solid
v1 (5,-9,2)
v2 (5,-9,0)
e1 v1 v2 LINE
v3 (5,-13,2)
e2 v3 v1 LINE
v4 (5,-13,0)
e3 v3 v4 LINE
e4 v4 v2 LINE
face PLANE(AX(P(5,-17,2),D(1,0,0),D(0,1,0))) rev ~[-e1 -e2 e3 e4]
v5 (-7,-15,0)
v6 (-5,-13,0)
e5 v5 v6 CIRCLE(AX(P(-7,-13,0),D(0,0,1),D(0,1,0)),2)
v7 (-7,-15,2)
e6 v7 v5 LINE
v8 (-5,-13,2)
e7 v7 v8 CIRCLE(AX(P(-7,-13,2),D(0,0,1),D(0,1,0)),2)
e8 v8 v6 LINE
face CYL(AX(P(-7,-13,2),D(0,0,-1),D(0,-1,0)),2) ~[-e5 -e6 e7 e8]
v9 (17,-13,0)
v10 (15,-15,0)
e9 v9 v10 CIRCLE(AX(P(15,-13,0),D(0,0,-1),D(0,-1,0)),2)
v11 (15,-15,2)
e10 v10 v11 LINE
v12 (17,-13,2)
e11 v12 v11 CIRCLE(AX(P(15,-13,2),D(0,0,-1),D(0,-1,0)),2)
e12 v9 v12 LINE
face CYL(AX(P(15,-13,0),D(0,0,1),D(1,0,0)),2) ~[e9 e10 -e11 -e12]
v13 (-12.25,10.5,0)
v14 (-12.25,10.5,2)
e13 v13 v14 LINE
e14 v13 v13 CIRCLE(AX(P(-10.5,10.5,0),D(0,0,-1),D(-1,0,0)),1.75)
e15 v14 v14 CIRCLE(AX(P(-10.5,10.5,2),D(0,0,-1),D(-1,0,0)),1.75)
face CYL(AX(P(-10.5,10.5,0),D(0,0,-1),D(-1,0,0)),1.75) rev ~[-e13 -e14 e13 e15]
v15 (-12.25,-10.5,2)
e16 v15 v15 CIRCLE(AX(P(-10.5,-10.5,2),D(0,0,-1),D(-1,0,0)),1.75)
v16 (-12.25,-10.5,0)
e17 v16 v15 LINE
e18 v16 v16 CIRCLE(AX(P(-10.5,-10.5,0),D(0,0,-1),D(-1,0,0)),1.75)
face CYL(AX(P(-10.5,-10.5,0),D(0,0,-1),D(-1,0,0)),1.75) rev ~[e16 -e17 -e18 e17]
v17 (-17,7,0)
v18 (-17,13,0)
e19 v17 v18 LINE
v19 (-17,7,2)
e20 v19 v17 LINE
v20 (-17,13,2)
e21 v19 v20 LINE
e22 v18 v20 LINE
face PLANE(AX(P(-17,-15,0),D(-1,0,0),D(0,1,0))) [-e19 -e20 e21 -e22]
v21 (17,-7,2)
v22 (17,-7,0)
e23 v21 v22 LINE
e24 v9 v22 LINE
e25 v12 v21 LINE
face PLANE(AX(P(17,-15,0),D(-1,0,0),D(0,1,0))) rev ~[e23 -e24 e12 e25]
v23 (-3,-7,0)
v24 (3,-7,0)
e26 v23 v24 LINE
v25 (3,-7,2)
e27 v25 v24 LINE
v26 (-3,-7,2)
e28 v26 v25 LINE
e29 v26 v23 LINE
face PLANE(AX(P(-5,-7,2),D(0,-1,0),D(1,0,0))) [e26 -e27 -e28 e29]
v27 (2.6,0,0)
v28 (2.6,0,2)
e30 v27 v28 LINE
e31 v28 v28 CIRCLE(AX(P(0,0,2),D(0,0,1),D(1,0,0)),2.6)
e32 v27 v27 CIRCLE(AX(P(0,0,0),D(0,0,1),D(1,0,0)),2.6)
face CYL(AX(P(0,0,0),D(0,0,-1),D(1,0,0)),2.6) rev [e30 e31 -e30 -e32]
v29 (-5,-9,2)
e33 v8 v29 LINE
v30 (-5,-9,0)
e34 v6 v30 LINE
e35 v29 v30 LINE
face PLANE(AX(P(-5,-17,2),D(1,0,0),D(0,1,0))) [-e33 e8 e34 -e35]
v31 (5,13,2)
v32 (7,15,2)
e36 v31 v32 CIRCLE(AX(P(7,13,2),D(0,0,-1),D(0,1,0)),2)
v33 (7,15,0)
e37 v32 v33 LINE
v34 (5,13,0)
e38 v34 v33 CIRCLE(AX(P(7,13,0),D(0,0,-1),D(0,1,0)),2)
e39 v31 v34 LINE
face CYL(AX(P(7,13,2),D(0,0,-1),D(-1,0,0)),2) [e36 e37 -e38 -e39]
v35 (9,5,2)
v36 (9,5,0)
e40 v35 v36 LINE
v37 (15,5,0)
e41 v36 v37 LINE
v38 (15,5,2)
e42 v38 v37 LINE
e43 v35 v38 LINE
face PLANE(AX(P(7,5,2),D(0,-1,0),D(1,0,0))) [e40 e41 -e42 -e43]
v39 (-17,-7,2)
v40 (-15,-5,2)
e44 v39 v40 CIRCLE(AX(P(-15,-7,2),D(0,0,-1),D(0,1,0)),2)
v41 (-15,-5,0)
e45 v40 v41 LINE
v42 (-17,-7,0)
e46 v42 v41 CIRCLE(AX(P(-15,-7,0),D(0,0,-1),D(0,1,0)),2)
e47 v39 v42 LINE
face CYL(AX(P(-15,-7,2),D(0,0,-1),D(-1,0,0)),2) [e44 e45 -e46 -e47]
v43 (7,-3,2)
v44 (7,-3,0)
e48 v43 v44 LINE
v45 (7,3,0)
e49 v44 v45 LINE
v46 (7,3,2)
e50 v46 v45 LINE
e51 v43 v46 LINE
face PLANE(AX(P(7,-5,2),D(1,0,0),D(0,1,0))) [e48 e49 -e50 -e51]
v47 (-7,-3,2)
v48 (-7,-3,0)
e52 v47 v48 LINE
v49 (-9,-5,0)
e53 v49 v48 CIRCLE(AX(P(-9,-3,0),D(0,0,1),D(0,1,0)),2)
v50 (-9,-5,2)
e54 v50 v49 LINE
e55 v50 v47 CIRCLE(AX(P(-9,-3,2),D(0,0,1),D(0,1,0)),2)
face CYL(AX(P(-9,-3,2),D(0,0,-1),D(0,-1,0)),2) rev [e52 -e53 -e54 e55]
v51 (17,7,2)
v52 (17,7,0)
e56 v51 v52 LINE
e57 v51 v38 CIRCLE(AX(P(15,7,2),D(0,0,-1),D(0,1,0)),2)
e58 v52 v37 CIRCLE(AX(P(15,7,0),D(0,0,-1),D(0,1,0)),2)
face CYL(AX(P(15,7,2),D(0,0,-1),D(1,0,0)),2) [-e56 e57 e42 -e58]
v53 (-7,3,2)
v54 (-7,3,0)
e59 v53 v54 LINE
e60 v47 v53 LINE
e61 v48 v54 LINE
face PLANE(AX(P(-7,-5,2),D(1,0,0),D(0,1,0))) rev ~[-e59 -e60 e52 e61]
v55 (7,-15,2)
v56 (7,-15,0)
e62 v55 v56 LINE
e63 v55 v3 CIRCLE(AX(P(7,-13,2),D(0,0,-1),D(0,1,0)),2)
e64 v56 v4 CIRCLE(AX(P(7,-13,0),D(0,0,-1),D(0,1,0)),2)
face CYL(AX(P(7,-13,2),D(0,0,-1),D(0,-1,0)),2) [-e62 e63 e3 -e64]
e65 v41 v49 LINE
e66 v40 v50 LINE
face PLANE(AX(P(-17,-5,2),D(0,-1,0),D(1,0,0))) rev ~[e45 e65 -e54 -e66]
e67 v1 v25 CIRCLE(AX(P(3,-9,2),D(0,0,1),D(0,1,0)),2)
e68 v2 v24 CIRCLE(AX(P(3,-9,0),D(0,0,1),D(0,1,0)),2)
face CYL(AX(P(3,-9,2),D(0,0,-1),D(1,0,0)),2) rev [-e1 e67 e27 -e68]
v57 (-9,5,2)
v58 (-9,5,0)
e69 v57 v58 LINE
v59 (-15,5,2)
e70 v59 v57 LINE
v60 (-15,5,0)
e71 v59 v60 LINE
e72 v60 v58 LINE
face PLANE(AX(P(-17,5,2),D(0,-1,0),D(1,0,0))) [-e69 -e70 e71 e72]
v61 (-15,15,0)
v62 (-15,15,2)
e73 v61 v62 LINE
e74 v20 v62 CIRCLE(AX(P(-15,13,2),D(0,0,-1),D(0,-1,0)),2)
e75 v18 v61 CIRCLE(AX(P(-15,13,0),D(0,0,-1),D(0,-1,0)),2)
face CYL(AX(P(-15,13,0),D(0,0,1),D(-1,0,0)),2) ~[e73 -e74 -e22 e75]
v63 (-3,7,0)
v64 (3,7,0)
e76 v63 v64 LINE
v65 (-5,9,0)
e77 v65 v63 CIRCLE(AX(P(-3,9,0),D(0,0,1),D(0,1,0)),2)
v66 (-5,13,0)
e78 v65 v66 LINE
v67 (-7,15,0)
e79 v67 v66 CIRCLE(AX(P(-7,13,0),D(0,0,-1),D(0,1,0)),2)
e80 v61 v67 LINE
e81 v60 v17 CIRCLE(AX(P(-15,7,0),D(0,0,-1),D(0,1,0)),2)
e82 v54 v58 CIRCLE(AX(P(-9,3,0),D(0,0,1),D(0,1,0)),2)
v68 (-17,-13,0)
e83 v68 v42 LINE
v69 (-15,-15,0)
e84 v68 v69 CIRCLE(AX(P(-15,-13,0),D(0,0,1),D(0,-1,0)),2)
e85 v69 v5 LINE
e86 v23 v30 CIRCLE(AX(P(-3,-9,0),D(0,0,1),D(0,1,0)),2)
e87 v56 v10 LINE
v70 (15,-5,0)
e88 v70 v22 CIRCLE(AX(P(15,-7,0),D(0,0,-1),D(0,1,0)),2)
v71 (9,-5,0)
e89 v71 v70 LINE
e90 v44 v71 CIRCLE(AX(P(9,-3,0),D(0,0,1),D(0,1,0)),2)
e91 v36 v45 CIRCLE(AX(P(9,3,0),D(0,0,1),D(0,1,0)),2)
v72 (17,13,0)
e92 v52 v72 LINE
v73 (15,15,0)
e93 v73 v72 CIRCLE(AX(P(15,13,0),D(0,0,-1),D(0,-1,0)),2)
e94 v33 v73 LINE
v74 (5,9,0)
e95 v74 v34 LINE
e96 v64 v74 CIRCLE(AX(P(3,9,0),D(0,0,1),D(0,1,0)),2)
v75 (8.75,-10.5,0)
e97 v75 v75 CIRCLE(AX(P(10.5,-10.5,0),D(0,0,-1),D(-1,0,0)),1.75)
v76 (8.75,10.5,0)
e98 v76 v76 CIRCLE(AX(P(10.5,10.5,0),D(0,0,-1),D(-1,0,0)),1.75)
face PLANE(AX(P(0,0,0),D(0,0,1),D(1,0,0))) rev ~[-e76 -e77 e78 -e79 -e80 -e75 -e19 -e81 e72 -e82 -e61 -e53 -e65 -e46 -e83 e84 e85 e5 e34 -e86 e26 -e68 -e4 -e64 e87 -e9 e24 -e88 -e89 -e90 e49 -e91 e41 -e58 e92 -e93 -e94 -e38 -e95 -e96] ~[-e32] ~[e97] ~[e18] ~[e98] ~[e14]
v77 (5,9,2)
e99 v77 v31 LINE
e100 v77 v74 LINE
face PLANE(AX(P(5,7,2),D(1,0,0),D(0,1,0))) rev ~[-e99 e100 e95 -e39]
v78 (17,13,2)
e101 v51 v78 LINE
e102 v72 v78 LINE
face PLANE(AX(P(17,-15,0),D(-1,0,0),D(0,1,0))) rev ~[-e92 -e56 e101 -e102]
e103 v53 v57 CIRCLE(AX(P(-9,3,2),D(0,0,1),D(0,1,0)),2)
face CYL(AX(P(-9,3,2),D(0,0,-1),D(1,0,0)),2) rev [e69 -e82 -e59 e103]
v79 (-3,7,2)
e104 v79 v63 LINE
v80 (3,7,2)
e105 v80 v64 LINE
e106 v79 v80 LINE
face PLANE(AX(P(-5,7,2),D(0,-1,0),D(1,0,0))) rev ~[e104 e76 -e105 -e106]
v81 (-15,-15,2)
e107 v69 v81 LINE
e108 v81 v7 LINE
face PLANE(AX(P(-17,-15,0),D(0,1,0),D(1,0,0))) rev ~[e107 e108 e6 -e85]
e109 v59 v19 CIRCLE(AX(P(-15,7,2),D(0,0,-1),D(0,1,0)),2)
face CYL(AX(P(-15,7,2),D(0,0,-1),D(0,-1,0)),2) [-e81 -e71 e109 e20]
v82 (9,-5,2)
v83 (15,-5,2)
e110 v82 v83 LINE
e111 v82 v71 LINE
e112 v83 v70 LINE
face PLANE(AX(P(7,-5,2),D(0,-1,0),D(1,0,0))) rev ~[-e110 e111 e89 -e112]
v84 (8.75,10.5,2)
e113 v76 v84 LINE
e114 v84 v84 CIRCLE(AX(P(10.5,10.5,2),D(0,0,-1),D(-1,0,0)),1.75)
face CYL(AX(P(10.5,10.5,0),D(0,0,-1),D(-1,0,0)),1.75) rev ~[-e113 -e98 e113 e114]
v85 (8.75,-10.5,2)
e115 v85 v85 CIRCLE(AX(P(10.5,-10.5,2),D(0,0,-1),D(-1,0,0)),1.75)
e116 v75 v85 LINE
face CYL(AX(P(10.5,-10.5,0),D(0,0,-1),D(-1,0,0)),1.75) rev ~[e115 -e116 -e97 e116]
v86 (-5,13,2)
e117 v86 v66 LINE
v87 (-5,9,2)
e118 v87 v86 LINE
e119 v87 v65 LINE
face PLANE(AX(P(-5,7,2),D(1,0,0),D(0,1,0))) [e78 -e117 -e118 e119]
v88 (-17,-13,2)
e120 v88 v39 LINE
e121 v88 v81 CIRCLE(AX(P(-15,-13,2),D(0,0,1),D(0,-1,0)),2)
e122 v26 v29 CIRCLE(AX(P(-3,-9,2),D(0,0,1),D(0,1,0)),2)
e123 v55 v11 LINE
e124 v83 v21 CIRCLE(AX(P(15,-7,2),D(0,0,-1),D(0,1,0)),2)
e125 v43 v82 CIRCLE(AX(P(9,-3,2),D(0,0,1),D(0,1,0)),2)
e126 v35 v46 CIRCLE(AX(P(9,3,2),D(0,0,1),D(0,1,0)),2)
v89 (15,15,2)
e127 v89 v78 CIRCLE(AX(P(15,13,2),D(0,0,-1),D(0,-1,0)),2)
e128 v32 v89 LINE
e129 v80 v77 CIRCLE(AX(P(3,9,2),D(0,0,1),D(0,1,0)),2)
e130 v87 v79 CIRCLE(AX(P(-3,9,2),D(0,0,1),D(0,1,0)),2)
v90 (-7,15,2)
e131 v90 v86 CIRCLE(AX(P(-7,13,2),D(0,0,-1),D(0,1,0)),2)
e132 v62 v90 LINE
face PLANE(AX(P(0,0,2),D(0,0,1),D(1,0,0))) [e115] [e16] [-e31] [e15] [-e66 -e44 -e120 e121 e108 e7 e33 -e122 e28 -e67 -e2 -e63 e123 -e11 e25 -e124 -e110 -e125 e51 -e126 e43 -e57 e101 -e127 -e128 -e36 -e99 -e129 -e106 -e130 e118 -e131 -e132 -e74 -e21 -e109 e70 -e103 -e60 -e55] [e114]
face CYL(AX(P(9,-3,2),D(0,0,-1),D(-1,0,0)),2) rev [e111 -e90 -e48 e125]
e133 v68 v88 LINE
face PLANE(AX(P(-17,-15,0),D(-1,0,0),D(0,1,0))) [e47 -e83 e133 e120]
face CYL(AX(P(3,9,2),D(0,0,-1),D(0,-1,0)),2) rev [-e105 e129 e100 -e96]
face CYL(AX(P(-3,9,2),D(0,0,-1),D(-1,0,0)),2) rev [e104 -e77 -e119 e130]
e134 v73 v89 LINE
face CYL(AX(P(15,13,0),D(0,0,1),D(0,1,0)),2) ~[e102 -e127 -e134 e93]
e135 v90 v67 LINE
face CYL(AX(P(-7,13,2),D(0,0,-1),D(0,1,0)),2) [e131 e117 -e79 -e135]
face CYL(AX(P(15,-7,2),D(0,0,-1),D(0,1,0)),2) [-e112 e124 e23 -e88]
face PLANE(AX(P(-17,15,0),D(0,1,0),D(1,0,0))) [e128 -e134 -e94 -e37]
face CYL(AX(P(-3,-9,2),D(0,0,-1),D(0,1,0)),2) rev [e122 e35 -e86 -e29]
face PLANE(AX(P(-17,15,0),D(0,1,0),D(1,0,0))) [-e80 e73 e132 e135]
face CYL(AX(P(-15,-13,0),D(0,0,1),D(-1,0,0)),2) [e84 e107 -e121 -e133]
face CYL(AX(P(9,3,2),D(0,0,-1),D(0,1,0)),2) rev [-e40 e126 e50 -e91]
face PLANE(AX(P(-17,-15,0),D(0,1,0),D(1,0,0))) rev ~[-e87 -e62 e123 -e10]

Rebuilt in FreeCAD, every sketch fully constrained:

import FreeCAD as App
import Part
import Sketcher

V = App.Vector


def edges_at(feature, points):
    """Names of the edges that pass closest to the given points."""
    edges = feature.Shape.Edges
    near = lambda p: min(range(len(edges)), key=lambda i: edges[i].distToShape(Part.Vertex(*p))[0])
    return sorted({f"Edge{near(p) + 1}" for p in points})


def add_polygon(sketch, points):
    """Adds a closed chain of lines whose ends are joined by coincident constraints."""
    first, n = sketch.GeometryCount, len(points)
    for a, b in zip(points, points[1:] + points[:1]):
        sketch.addGeometry(Part.LineSegment(App.Vector(*a, 0), App.Vector(*b, 0)), False)
    for i in range(n):
        sketch.addConstraint(Sketcher.Constraint("Coincident", first + i, 2, first + (i + 1) % n, 1))

doc = App.newDocument("Part")
body = doc.addObject("PartDesign::Body", "Body")

# Sketch on XY plane
sketch1 = body.newObject("Sketcher::SketchObject", "Sketch")
sketch1.AttachmentSupport = (doc.getObject("XY_Plane"), [""])
sketch1.MapMode = "FlatFace"
add_polygon(sketch1, [(-17, 15), (-17, -15), (17, -15), (17, 15)])  # lines 0-3
sketch1.addGeometry(Part.Circle(V(0, 0, 0), V(0, 0, 1), 2.6), False)  # 4
sketch1.addConstraint(Sketcher.Constraint("Vertical", 0))
sketch1.addConstraint(Sketcher.Constraint("Horizontal", 1))
sketch1.addConstraint(Sketcher.Constraint("Vertical", 2))
sketch1.addConstraint(Sketcher.Constraint("Horizontal", 3))
sketch1.addConstraint(Sketcher.Constraint("Coincident", 4, 3, -1, 1))
sketch1.addConstraint(Sketcher.Constraint("Symmetric", 0, 2, 2, 2, -1, 1))
sketch1.addConstraint(Sketcher.Constraint("Diameter", 4, 5.2))
sketch1.addConstraint(Sketcher.Constraint("DistanceX", 1, 1, 1, 2, 34.0))
sketch1.addConstraint(Sketcher.Constraint("DistanceY", 0, 2, 0, 1, 30.0))
pad1 = body.newObject("PartDesign::Pad", "Pad")
pad1.Profile = sketch1
pad1.Length = 2

# Sketch on XY plane
sketch2 = body.newObject("Sketcher::SketchObject", "Sketch001")
sketch2.AttachmentSupport = (doc.getObject("XY_Plane"), [""])
sketch2.MapMode = "FlatFace"
sketch2.addGeometry(Part.Circle(V(-10.5, -10.5, 0), V(0, 0, 1), 1.8), False)
sketch2.addGeometry(Part.Circle(V(10.5, -10.5, 0), V(0, 0, 1), 1.8), False)
sketch2.addGeometry(Part.Circle(V(10.5, 10.5, 0), V(0, 0, 1), 1.8), False)
sketch2.addGeometry(Part.Circle(V(-10.5, 10.5, 0), V(0, 0, 1), 1.8), False)
sketch2.addConstraint(Sketcher.Constraint("Equal", 0, 1))
sketch2.addConstraint(Sketcher.Constraint("Equal", 1, 2))
sketch2.addConstraint(Sketcher.Constraint("Equal", 2, 3))
sketch2.addConstraint(Sketcher.Constraint("Symmetric", 0, 3, 2, 3, -1, 1))
sketch2.addConstraint(Sketcher.Constraint("Symmetric", 1, 3, 3, 3, -1, 1))
sketch2.addConstraint(Sketcher.Constraint("Symmetric", 0, 3, 1, 3, -2))
sketch2.addConstraint(Sketcher.Constraint("Diameter", 0, 3.5))
sketch2.addConstraint(Sketcher.Constraint("DistanceX", 0, 3, 1, 3, 21.0))
sketch2.addConstraint(Sketcher.Constraint("DistanceY", 1, 3, 2, 3, 21.0))
pocket1 = body.newObject("PartDesign::Pocket", "Pocket")
pocket1.Profile = sketch2
pocket1.Length = 2
pocket1.Reversed = True

# Sketch on XY plane
sketch3 = body.newObject("Sketcher::SketchObject", "Sketch002")
sketch3.AttachmentSupport = (doc.getObject("XY_Plane"), [""])
sketch3.MapMode = "FlatFace"
sketch3.AttachmentOffset = App.Placement(V(0, 0, 2), App.Rotation())
add_polygon(sketch3, [(-17, 5), (-17, -5), (-7, -5), (-7, 5)])  # lines 0-3
add_polygon(sketch3, [(-5, 17), (-5, 7), (5, 7), (5, 17)])  # lines 4-7
add_polygon(sketch3, [(7, 5), (7, -5), (17, -5), (17, 5)])  # lines 8-11
add_polygon(sketch3, [(-5, -7), (-5, -17), (5, -17), (5, -7)])  # lines 12-15
sketch3.addConstraint(Sketcher.Constraint("Vertical", 0))
sketch3.addConstraint(Sketcher.Constraint("Horizontal", 1))
sketch3.addConstraint(Sketcher.Constraint("Vertical", 2))
sketch3.addConstraint(Sketcher.Constraint("Horizontal", 3))
sketch3.addConstraint(Sketcher.Constraint("Vertical", 4))
sketch3.addConstraint(Sketcher.Constraint("Horizontal", 5))
sketch3.addConstraint(Sketcher.Constraint("Vertical", 6))
sketch3.addConstraint(Sketcher.Constraint("Horizontal", 7))
sketch3.addConstraint(Sketcher.Constraint("Vertical", 8))
sketch3.addConstraint(Sketcher.Constraint("Horizontal", 9))
sketch3.addConstraint(Sketcher.Constraint("Vertical", 10))
sketch3.addConstraint(Sketcher.Constraint("Horizontal", 11))
sketch3.addConstraint(Sketcher.Constraint("Vertical", 12))
sketch3.addConstraint(Sketcher.Constraint("Horizontal", 13))
sketch3.addConstraint(Sketcher.Constraint("Vertical", 14))
sketch3.addConstraint(Sketcher.Constraint("Horizontal", 15))
sketch3.addConstraint(Sketcher.Constraint("Symmetric", 2, 2, 8, 2, -1, 1))
sketch3.addConstraint(Sketcher.Constraint("Symmetric", 0, 2, 10, 2, -1, 1))
sketch3.addConstraint(Sketcher.Constraint("Symmetric", 6, 2, 12, 2, -1, 1))
sketch3.addConstraint(Sketcher.Constraint("Symmetric", 4, 2, 14, 2, -1, 1))
sketch3.addConstraint(Sketcher.Constraint("Horizontal", 1, 2, 8, 2))
sketch3.addConstraint(Sketcher.Constraint("Vertical", 7, 2, 12, 2))
sketch3.addConstraint(Sketcher.Constraint("Equal", 3, 5))
sketch3.addConstraint(Sketcher.Constraint("Equal", 15, 0))
sketch3.addConstraint(Sketcher.Constraint("Equal", 2, 4))
sketch3.addConstraint(Sketcher.Constraint("DistanceX", 1, 1, 1, 2, 10.0))
sketch3.addConstraint(Sketcher.Constraint("DistanceX", 0, 2, -1, 1, 17.0))
sketch3.addConstraint(Sketcher.Constraint("DistanceY", -1, 1, 4, 2, 7.0))
pocket2 = body.newObject("PartDesign::Pocket", "Pocket001")
pocket2.Profile = sketch3
pocket2.Length = 2
doc.recompute()

fillet = body.newObject("PartDesign::Fillet", "Fillet")
fillet.Base = (pocket2, edges_at(pocket2, [
    (-17, -5, 1),
    (-17, 5, 1),
    (-7, 5, 1),
    (-7, -5, 1),
    (-5, 15, 1),
    (5, 15, 1),
    (-5, 7, 1),
    (5, 7, 1),
    (17, -5, 1),
    (7, -5, 1),
    (7, 5, 1),
    (17, 5, 1),
    (17, -15, 1),
    (-17, -15, 1),
    (-17, 15, 1),
    (17, 15, 1),
    (5, -15, 1),
    (-5, -15, 1),
    (5, -7, 1),
    (-5, -7, 1),
]))
fillet.Radius = 2

doc.recompute()
